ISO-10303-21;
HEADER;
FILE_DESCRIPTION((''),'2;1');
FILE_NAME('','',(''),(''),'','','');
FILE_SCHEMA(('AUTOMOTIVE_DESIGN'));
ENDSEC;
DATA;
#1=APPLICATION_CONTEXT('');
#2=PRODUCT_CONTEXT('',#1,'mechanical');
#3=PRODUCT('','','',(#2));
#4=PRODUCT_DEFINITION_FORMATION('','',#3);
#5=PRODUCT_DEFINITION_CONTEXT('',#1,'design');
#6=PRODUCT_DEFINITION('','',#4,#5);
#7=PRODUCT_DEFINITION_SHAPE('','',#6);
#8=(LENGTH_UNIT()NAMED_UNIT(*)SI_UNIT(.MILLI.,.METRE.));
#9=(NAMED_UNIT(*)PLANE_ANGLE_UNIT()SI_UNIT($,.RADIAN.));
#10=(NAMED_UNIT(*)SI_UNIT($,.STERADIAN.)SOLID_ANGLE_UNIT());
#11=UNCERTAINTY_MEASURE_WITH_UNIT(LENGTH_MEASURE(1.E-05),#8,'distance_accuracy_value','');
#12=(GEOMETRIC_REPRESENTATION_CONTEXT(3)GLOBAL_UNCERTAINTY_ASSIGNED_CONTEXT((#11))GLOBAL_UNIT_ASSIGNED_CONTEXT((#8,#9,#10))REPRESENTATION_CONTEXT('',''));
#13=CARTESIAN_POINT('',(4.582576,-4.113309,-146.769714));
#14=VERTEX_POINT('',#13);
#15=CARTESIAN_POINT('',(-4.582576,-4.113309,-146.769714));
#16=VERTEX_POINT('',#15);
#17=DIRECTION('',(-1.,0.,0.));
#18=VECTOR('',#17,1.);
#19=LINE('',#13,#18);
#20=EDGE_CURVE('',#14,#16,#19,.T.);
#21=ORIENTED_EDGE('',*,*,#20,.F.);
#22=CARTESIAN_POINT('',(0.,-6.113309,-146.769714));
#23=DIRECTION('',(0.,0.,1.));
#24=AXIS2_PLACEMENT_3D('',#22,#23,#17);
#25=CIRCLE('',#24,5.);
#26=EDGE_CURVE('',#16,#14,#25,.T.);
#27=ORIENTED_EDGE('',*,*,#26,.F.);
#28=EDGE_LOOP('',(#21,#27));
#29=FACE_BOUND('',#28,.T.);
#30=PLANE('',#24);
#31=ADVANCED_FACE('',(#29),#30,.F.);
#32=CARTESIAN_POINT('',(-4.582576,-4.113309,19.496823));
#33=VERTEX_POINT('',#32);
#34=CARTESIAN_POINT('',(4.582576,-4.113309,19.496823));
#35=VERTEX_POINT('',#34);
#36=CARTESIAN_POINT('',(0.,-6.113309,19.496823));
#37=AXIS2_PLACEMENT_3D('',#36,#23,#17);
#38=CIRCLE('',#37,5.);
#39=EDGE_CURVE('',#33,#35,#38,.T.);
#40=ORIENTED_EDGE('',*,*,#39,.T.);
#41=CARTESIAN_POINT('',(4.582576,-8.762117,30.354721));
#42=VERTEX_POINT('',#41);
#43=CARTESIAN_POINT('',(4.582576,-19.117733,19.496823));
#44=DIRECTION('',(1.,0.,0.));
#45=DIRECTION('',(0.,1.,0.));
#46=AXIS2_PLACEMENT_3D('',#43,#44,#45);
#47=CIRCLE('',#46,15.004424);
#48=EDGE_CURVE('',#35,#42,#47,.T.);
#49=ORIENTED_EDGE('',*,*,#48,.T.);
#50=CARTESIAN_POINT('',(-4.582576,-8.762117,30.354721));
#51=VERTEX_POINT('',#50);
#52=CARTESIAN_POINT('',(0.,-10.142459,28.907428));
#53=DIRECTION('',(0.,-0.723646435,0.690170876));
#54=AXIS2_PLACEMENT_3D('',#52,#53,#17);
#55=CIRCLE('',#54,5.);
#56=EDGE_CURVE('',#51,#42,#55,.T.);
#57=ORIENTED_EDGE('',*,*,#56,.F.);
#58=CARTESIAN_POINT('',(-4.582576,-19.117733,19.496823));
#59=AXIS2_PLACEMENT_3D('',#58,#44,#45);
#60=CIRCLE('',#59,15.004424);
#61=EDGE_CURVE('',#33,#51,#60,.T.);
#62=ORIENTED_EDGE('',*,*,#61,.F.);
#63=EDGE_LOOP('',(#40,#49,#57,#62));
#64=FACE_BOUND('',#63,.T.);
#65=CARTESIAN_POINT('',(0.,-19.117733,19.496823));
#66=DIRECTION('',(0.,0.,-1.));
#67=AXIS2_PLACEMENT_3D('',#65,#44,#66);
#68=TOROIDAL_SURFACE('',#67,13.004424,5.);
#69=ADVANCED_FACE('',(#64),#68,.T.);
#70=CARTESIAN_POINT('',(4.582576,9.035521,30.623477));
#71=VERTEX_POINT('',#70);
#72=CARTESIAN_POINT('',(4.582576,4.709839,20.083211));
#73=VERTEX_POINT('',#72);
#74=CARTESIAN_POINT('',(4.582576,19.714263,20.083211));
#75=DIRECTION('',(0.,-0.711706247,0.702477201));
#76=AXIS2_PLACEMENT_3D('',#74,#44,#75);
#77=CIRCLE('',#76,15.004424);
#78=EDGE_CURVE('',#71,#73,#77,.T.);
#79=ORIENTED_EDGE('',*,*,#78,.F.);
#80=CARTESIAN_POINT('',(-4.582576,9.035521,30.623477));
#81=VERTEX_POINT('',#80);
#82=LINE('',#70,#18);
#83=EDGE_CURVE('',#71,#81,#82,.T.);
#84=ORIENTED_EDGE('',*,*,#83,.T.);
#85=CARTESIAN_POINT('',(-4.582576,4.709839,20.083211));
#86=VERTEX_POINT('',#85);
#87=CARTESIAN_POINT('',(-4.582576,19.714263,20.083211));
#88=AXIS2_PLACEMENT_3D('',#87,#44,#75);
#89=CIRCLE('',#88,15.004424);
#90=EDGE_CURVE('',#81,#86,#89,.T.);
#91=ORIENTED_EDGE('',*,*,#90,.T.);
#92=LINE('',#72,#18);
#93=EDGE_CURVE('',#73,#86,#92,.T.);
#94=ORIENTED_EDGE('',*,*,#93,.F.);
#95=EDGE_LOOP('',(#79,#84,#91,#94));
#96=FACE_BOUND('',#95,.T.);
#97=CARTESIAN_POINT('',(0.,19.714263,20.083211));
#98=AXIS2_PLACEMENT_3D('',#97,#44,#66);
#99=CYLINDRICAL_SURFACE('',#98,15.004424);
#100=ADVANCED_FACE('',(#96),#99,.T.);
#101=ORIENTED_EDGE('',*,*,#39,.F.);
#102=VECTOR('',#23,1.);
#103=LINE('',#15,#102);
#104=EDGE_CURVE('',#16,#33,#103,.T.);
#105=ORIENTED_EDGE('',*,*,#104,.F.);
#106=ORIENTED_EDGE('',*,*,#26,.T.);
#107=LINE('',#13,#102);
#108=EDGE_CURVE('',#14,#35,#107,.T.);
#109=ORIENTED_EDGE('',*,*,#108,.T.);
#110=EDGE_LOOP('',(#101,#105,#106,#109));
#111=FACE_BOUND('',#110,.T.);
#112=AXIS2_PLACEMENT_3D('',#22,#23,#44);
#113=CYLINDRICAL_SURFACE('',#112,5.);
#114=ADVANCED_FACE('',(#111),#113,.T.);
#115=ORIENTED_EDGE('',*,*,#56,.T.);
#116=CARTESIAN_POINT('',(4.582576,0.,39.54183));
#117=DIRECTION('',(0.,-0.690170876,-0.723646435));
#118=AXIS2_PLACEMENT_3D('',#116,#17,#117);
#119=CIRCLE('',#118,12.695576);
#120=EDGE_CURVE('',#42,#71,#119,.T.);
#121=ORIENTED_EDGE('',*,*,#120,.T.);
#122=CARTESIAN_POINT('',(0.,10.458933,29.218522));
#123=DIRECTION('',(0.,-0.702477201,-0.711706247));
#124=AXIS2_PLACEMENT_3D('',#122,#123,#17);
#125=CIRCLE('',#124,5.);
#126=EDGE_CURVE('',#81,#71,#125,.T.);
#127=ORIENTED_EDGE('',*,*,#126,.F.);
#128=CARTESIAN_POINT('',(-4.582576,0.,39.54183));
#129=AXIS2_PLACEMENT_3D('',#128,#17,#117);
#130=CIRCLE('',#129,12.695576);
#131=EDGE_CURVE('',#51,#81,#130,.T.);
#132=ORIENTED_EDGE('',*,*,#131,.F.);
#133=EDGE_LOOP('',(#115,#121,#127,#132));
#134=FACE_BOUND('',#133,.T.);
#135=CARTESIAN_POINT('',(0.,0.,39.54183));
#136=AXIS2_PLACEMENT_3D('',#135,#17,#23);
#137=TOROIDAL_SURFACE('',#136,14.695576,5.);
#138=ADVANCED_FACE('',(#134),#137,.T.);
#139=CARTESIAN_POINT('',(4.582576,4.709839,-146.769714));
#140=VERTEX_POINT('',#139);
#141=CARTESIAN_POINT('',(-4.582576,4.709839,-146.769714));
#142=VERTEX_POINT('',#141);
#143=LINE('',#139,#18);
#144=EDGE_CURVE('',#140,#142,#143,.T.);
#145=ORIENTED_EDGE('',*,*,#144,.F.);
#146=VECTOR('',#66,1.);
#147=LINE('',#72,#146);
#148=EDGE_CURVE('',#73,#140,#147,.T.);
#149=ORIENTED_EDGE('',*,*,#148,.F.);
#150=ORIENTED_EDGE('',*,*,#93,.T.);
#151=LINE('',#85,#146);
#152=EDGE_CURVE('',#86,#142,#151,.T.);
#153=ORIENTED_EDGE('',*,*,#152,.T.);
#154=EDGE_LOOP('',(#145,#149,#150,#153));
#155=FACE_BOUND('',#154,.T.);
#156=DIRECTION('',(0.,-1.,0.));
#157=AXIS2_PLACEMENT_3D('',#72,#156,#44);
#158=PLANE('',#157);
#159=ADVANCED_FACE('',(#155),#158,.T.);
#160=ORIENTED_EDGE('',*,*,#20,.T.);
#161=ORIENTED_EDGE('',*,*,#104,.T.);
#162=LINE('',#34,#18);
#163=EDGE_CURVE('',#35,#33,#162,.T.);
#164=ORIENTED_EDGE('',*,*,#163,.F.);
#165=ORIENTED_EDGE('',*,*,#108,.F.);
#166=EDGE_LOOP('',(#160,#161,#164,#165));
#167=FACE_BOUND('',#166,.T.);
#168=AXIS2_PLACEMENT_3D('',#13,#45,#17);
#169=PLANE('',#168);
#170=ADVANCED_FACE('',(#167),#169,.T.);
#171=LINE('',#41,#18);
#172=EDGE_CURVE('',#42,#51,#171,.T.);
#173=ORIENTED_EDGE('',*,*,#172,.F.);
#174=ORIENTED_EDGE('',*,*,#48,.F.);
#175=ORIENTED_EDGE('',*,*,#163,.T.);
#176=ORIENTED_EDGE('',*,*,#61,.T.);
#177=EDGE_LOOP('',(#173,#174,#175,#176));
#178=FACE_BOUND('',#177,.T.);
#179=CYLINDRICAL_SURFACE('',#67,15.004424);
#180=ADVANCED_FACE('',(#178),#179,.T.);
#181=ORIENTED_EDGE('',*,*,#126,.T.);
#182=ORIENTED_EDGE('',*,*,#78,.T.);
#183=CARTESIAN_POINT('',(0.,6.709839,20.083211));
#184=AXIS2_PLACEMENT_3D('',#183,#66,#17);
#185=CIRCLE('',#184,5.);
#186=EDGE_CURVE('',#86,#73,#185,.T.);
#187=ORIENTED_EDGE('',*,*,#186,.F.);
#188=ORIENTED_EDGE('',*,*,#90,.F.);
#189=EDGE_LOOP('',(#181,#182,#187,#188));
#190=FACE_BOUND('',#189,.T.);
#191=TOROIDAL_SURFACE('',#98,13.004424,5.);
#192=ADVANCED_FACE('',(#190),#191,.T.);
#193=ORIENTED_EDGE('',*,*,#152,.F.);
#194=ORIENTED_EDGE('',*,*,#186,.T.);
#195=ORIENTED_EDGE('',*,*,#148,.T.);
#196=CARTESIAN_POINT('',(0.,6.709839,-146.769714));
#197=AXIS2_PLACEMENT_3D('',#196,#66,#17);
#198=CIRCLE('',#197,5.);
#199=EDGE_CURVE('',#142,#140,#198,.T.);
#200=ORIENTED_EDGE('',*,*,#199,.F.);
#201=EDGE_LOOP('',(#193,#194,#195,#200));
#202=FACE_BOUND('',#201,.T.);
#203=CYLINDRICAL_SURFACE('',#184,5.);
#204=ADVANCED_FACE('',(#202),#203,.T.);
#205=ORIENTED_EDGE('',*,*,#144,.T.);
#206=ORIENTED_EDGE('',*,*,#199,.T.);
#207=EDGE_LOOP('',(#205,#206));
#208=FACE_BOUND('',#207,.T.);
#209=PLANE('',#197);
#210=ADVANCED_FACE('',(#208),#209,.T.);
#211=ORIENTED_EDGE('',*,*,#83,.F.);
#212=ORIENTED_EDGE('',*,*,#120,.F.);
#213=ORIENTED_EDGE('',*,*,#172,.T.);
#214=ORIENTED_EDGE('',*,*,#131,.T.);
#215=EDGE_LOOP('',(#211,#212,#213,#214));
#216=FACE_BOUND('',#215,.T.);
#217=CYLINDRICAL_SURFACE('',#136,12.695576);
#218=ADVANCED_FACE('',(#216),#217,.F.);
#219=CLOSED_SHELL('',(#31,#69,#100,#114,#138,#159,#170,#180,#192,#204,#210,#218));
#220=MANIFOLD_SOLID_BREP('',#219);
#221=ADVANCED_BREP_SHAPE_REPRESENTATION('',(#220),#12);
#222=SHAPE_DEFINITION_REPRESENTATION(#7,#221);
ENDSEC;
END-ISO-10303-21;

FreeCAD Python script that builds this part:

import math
import FreeCAD as App
import Part
import Sketcher
from FreeCAD import Vector

doc = App.newDocument("Part")
params = doc.addObject("Spreadsheet::Sheet", "Params")
for row, (alias, value) in enumerate([
    ("sketch1_radius", "5 mm"),
    ("sketch2_radius", "15 mm"),
    ("sketch2_radius2", "12.7 mm"),
], start=1):
    params.set(f"A{row}", alias)
    params.set(f"B{row}", "=" + value)
    params.setAlias(f"B{row}", alias)

body = doc.addObject("PartDesign::Body", "Body")

# Sketch on XY plane
sketch1 = doc.addObject("Sketcher::SketchObject", "Sketch")
body.addObject(sketch1)
sketch1.AttachmentSupport = (doc.XY_Plane, [""])
sketch1.MapMode = "FlatFace"
sketch1.AttachmentOffset = App.Placement(Vector(0, 0, -146.769714), App.Rotation())
sketch1.addGeometry([
    Part.LineSegment(Vector(5, 5, 0), Vector(-5, 5, 0)),
    Part.ArcOfCircle(Part.Circle(Vector(0, 7, 0), Vector(0, 0, 1), 5), math.radians(-24), math.radians(204)),
], False)
sketch1.addConstraint([
    Sketcher.Constraint("Coincident", 0, 1, 1, 1),
    Sketcher.Constraint("Coincident", 1, 2, 0, 2),
    Sketcher.Constraint("Horizontal", 0),
    Sketcher.Constraint("PointOnObject", 1, 3, -2),
    Sketcher.Constraint("Radius", 1, 5.0),
    Sketcher.Constraint("DistanceY", 0, 1, 1, 3, 2.0),
    Sketcher.Constraint("DistanceY", -1, 1, 1, 3, 6.709839),
])
sketch1.setExpression("Constraints[4]", "Params.sketch1_radius")

# Sketch on YZ plane
sketch2 = doc.addObject("Sketcher::SketchObject", "Sketch001")
body.addObject(sketch2)
sketch2.AttachmentSupport = (doc.YZ_Plane, [""])
sketch2.MapMode = "FlatFace"
sketch2.addGeometry([
    Part.LineSegment(Vector(5, -147, 0), Vector(5, 20, 0)),  # 0
    Part.ArcOfCircle(Part.Circle(Vector(20, 20, 0), Vector(0, 0, 1), 15), math.radians(135), math.radians(180)),  # 1
    Part.ArcOfCircle(Part.Circle(Vector(0, 40, 0), Vector(0, 0, 1), 13), math.radians(-45), math.radians(226)),  # 2
    Part.ArcOfCircle(Part.Circle(Vector(-19, 19, 0), Vector(0, 0, 1), 15), math.radians(0), math.radians(46)),  # 3
    Part.LineSegment(Vector(-4, 19, 0), Vector(-4, -147, 0)),  # 4
], False)
sketch2.addConstraint([
    Sketcher.Constraint("Tangent", 0, 2, 1, 2),
    Sketcher.Constraint("Tangent", 1, 1, 2, 1),
    Sketcher.Constraint("Tangent", 2, 2, 3, 2),
    Sketcher.Constraint("Tangent", 3, 1, 4, 1),
    Sketcher.Constraint("Vertical", 0),
    Sketcher.Constraint("Vertical", 4),
    Sketcher.Constraint("Equal", 1, 3),
    Sketcher.Constraint("PointOnObject", 2, 3, -2),
    Sketcher.Constraint("Horizontal", 0, 1, 4, 2),
    Sketcher.Constraint("Radius", 1, 15.0),
    Sketcher.Constraint("Radius", 2, 12.7),
    Sketcher.Constraint("DistanceY", 0, 1, 0, 2, 166.852925),
    Sketcher.Constraint("DistanceY", 4, 2, 4, 1, 166.266537),
    Sketcher.Constraint("DistanceY", -1, 1, 1, 3, 20.083211),
    Sketcher.Constraint("DistanceY", -1, 1, 2, 3, 39.54183),
])
sketch2.setExpression("Constraints[9]", "Params.sketch2_radius")
sketch2.setExpression("Constraints[10]", "Params.sketch2_radius2")
doc.recompute()

additivepipe = doc.addObject("PartDesign::AdditivePipe", "AdditivePipe")
body.addObject(additivepipe)
additivepipe.Profile = sketch1
additivepipe.Spine = (sketch2, ["Edge1", "Edge2", "Edge3", "Edge4", "Edge5"])

doc.recompute()
